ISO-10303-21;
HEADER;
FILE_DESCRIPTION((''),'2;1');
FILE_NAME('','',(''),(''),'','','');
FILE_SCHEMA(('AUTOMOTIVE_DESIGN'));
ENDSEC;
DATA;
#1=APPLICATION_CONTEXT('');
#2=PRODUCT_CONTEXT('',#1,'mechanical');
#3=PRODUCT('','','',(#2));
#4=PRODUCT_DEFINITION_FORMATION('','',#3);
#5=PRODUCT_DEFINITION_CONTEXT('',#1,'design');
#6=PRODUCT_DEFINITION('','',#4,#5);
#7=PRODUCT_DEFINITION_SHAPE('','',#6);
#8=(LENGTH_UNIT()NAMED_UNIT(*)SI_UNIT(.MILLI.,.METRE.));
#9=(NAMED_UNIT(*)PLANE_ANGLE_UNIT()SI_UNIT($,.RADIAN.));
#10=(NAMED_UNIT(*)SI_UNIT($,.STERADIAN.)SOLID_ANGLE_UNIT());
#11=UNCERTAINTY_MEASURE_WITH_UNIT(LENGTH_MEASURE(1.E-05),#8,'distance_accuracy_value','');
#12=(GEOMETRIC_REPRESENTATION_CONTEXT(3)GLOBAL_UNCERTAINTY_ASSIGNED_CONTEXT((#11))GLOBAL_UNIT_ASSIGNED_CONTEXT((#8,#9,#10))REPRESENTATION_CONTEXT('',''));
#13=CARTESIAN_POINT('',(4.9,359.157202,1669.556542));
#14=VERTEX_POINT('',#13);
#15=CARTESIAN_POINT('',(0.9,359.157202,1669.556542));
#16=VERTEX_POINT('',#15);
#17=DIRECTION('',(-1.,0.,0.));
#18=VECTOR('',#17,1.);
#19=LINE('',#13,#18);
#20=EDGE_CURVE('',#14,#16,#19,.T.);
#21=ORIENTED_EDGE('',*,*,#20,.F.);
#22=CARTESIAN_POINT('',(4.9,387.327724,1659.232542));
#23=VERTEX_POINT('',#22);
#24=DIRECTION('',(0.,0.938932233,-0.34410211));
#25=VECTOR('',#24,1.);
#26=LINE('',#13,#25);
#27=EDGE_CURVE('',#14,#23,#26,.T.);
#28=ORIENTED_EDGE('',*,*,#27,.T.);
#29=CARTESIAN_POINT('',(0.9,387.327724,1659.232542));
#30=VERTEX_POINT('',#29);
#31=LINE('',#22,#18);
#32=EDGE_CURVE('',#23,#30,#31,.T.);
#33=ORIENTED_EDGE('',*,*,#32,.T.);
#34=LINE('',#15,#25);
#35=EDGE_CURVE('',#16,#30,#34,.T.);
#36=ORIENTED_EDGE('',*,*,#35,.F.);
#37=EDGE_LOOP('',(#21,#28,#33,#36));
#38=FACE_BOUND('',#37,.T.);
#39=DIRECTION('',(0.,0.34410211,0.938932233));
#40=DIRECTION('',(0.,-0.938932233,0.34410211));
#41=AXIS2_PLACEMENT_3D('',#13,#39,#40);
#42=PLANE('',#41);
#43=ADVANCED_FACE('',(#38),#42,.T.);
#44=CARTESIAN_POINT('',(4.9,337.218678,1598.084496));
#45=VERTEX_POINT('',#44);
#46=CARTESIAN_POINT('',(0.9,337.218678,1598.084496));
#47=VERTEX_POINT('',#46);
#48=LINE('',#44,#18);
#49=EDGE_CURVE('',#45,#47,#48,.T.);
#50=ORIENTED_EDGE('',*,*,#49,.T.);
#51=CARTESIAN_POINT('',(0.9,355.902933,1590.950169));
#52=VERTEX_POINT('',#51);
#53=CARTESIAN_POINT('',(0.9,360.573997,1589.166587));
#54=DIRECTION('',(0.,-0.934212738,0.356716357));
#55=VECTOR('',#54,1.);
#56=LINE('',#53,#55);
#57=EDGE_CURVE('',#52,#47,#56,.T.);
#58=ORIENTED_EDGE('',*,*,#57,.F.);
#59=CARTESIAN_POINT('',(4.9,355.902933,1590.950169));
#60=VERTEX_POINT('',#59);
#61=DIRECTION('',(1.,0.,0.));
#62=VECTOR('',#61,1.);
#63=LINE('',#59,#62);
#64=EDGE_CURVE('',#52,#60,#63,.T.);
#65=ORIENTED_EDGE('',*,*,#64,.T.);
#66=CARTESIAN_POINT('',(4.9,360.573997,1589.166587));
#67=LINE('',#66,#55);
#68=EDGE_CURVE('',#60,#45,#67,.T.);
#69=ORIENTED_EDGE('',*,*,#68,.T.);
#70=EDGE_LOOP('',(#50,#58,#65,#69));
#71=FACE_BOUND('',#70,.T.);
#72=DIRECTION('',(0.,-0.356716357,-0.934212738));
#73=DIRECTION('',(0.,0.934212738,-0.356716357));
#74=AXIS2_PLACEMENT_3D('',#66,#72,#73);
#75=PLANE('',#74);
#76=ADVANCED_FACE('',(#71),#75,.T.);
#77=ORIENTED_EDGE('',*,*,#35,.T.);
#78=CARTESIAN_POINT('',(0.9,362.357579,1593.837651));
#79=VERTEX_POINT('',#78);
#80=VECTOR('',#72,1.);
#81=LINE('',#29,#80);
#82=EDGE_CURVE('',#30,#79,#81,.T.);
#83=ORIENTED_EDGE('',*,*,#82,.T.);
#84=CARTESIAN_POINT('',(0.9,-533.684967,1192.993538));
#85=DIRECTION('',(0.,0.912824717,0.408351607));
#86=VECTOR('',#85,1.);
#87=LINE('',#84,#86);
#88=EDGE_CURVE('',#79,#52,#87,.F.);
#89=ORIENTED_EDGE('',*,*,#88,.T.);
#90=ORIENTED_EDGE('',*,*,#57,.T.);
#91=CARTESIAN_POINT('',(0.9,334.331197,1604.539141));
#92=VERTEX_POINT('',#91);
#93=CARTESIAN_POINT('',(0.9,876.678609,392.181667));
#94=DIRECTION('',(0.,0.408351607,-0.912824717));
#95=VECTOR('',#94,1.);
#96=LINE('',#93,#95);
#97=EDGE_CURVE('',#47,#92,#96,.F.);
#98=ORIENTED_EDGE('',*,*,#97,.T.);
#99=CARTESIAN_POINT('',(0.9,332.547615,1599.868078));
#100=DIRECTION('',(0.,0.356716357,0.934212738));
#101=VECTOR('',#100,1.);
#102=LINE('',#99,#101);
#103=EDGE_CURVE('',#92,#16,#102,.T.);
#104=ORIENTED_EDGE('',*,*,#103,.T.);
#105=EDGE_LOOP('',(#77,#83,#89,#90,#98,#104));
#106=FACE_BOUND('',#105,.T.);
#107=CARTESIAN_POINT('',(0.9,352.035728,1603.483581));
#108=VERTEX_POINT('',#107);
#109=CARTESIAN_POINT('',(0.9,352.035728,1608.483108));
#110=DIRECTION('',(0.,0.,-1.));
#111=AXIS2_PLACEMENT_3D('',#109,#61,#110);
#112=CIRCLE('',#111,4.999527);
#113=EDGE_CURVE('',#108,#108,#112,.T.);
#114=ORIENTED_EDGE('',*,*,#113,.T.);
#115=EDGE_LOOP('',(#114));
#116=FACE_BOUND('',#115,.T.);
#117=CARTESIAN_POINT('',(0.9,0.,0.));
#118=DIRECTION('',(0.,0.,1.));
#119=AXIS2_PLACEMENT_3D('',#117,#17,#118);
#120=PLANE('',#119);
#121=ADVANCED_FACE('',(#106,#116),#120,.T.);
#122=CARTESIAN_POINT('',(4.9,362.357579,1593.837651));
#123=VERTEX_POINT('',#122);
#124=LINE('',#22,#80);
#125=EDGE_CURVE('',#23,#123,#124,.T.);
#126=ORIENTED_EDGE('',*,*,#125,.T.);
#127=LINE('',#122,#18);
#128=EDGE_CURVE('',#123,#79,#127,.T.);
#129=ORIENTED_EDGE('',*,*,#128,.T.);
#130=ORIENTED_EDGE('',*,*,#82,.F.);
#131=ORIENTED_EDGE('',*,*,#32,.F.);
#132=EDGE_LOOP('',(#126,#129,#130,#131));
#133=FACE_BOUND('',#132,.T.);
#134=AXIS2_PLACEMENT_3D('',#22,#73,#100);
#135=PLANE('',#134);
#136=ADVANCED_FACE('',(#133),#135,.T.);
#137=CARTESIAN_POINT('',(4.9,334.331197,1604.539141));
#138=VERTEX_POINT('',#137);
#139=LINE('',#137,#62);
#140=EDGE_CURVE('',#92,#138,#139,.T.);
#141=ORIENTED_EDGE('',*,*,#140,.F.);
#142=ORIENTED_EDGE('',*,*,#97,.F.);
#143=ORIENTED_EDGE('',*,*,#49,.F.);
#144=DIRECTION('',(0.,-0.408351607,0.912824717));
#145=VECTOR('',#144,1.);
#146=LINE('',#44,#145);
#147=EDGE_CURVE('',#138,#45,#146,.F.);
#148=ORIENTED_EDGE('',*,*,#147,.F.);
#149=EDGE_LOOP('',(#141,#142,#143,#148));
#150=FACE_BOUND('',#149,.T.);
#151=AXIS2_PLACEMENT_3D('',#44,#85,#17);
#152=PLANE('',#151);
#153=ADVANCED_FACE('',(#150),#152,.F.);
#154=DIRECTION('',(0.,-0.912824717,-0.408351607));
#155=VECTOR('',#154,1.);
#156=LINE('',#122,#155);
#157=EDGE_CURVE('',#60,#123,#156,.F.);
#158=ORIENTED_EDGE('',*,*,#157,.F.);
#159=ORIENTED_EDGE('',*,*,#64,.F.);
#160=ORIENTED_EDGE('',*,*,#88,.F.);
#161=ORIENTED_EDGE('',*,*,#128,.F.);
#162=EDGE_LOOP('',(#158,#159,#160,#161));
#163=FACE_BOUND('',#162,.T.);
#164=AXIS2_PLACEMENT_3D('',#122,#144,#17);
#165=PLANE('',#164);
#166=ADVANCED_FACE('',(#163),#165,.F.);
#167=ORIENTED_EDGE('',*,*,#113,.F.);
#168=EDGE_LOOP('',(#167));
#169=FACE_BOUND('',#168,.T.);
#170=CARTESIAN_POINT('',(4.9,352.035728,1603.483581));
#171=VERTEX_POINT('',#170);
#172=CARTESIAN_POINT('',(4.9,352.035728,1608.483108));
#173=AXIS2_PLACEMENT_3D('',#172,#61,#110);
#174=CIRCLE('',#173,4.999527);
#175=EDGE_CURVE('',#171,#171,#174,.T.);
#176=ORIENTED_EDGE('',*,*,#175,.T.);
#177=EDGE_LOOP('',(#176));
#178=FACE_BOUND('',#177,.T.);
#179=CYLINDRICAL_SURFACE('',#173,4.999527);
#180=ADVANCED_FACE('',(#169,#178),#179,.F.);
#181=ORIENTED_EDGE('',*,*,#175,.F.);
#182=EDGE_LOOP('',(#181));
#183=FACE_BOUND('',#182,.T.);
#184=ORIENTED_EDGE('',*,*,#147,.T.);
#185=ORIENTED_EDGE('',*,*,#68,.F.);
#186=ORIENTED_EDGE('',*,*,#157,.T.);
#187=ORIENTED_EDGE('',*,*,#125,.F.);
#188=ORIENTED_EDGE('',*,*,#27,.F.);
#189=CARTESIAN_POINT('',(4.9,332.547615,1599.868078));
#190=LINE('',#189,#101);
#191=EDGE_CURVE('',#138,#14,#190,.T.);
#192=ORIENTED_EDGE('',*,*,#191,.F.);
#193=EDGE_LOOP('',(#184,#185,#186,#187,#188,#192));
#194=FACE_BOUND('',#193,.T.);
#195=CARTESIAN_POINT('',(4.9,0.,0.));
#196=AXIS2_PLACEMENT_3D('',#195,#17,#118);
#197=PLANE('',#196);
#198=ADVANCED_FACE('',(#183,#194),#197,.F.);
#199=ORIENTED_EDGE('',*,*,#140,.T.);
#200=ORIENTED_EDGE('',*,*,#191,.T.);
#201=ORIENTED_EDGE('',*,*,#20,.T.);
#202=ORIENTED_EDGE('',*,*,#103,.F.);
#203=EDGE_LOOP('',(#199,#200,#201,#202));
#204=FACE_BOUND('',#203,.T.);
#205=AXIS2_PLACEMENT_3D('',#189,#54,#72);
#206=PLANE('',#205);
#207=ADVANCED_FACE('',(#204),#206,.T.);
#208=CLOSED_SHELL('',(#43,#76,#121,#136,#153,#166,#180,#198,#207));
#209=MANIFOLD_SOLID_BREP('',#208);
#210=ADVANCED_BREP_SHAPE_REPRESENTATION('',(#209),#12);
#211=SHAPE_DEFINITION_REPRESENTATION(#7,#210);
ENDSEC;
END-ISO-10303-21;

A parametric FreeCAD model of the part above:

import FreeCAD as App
import Part
import Sketcher
from FreeCAD import Vector
Q = App.Units.Quantity


def edges_at(feature, points):
    """Names of the edges that pass closest to the given points."""
    edges = feature.Shape.Edges
    near = lambda p: min(range(len(edges)), key=lambda i: edges[i].distToShape(Part.Vertex(*p))[0])
    return sorted({f"Edge{near(p) + 1}" for p in points})

doc = App.newDocument("Part")
body = doc.addObject("PartDesign::Body", "Body")

sketch1 = doc.addObject("Sketcher::SketchObject", "Sketch")
body.addObject(sketch1)
sketch1.AttachmentSupport = (doc.YZ_Plane, [""])
sketch1.MapMode = "FlatFace"
sketch1.AttachmentOffset = App.Placement(Vector(0, 0, 0.9), App.Rotation())
sketch1.addGeometry([
    Part.LineSegment(Vector(361, 1589, 0), Vector(333, 1600, 0)),
    Part.LineSegment(Vector(333, 1600, 0), Vector(359, 1670, 0)),
    Part.LineSegment(Vector(359, 1670, 0), Vector(387, 1659, 0)),
    Part.LineSegment(Vector(387, 1659, 0), Vector(361, 1589, 0)),
], False)
sketch1.addConstraint([
    Sketcher.Constraint("Coincident", 0, 2, 1, 1),
    Sketcher.Constraint("Coincident", 1, 2, 2, 1),
    Sketcher.Constraint("Coincident", 2, 2, 3, 1),
    Sketcher.Constraint("Coincident", 3, 2, 0, 1),
    Sketcher.Constraint("Perpendicular", 0, 1),
    Sketcher.Constraint("Parallel", 1, 3),
    Sketcher.Constraint("Distance", 0, Q("30 mm")),
    Sketcher.Constraint("Distance", 3, Q("75 mm")),
    Sketcher.Constraint("DistanceY", 2, 2, 1, 2, Q("10.324 mm")),
    Sketcher.Constraint("DistanceX", -1, 1, 1, 2, Q("359.157202 mm")),
    Sketcher.Constraint("DistanceY", -1, 1, 1, 2, Q("1669.556542 mm")),
    Sketcher.Constraint("DistanceX", 0, 2, 2, 2, Q("54.780109 mm")),
])
pad1 = doc.addObject("PartDesign::Pad", "Pad")
body.addObject(pad1)
pad1.Profile = sketch1
pad1.Length = 4

sketch2 = doc.addObject("Sketcher::SketchObject", "Sketch001")
body.addObject(sketch2)
sketch2.AttachmentSupport = (doc.YZ_Plane, [""])
sketch2.MapMode = "FlatFace"
sketch2.AttachmentOffset = App.Placement(Vector(0, 0, 4.9), App.Rotation())
sketch2.addGeometry(Part.Circle(Vector(352, 1608.5, 0), Vector(0, 0, 1), 5), False)
sketch2.addConstraint([
    Sketcher.Constraint("Diameter", 0, Q("9.999054 mm")),
    Sketcher.Constraint("DistanceX", -1, 1, 0, 3, Q("352.035728 mm")),
    Sketcher.Constraint("DistanceY", -1, 1, 0, 3, Q("1608.483108 mm")),
])
doc.recompute()
hole = doc.addObject("PartDesign::Hole", "Hole")
body.addObject(hole)
hole.Profile = sketch2
hole.ThreadType = "None"
hole.Diameter = 9.999054
hole.DepthType = "ThroughAll"
doc.recompute()

chamfer = doc.addObject("PartDesign::Chamfer", "Chamfer")
body.addObject(chamfer)
chamfer.Base = (hole, edges_at(hole, [(2.9, 332.548, 1599.868), (2.9, 360.574, 1589.167)]))
chamfer.Size = 5

doc.recompute()
